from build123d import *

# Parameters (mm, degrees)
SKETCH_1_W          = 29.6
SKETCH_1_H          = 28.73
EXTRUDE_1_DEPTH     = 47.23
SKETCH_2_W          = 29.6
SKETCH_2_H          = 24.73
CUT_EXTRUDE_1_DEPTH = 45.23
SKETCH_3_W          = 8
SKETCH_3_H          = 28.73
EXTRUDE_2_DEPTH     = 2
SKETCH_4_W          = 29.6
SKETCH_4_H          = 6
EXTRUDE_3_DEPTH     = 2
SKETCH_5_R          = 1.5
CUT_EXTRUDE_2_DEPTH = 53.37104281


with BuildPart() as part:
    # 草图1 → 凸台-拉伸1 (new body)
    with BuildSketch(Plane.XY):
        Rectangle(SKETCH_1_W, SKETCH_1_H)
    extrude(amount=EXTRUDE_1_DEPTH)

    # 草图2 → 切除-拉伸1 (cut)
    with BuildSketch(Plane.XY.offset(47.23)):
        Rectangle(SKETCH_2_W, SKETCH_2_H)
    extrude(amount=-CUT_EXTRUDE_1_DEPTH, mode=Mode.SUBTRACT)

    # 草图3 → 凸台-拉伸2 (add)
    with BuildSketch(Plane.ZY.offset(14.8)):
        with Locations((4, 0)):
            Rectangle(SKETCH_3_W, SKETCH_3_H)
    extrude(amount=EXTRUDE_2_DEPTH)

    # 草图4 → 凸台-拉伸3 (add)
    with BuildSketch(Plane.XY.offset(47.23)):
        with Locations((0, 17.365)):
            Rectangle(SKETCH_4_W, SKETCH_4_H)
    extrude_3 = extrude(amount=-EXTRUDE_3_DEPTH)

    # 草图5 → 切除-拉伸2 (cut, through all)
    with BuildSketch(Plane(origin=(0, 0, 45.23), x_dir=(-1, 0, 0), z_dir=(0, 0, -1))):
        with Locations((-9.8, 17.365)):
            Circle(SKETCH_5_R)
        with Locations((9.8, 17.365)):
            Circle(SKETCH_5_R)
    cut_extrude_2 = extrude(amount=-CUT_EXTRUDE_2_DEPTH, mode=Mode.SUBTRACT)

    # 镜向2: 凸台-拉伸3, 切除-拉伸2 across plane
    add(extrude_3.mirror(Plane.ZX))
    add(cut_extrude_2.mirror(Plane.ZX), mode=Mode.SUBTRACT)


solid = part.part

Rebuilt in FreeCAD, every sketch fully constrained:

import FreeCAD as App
import Part
import Sketcher


def add_polygon(sketch, points):
    """Adds a closed chain of lines whose ends are joined by coincident constraints."""
    first, n = sketch.GeometryCount, len(points)
    for a, b in zip(points, points[1:] + points[:1]):
        sketch.addGeometry(Part.LineSegment(App.Vector(*a, 0), App.Vector(*b, 0)), False)
    for i in range(n):
        sketch.addConstraint(Sketcher.Constraint("Coincident", first + i, 2, first + (i + 1) % n, 1))

doc = App.newDocument("Part")
body = doc.addObject("PartDesign::Body", "Body")

# Sketch on XY plane
sketch1 = doc.addObject("Sketcher::SketchObject", "Sketch")
body.addObject(sketch1)
sketch1.AttachmentSupport = (doc.XY_Plane, [""])
sketch1.MapMode = "FlatFace"
add_polygon(sketch1, [(-14.8, 14.365), (-14.8, -14.365), (14.8, -14.365), (14.8, 14.365)])  # lines 0-3
sketch1.addConstraint([
    Sketcher.Constraint("Vertical", 0),
    Sketcher.Constraint("Horizontal", 1),
    Sketcher.Constraint("Vertical", 2),
    Sketcher.Constraint("Horizontal", 3),
    Sketcher.Constraint("Symmetric", 0, 2, 2, 2, -1, 1),
    Sketcher.Constraint("DistanceX", 1, 1, 1, 2, 29.6),
    Sketcher.Constraint("DistanceY", 0, 2, 0, 1, 28.73),
])
pad1 = doc.addObject("PartDesign::Pad", "Pad")
body.addObject(pad1)
pad1.Profile = sketch1
pad1.Length = 47.23

# Sketch on XY plane
sketch2 = doc.addObject("Sketcher::SketchObject", "Sketch001")
body.addObject(sketch2)
sketch2.AttachmentSupport = (doc.XY_Plane, [""])
sketch2.MapMode = "FlatFace"
sketch2.AttachmentOffset = App.Placement(App.Vector(0, 0, 47.23), App.Rotation())
add_polygon(sketch2, [(-14.8, 12.365), (-14.8, -12.365), (14.8, -12.365), (14.8, 12.365)])  # lines 0-3
sketch2.addConstraint([
    Sketcher.Constraint("Vertical", 0),
    Sketcher.Constraint("Horizontal", 1),
    Sketcher.Constraint("Vertical", 2),
    Sketcher.Constraint("Horizontal", 3),
    Sketcher.Constraint("Symmetric", 0, 2, 2, 2, -1, 1),
    Sketcher.Constraint("DistanceX", 1, 1, 1, 2, 29.6),
    Sketcher.Constraint("DistanceY", 0, 2, 0, 1, 24.73),
])
pocket1 = doc.addObject("PartDesign::Pocket", "Pocket")
body.addObject(pocket1)
pocket1.Profile = sketch2
pocket1.Length = 45.23

# Sketch on YZ plane
sketch3 = doc.addObject("Sketcher::SketchObject", "Sketch002")
body.addObject(sketch3)
sketch3.AttachmentSupport = (doc.YZ_Plane, [""])
sketch3.MapMode = "FlatFace"
sketch3.AttachmentOffset = App.Placement(App.Vector(0, 0, -14.8), App.Rotation())
add_polygon(sketch3, [(14.365, 0), (-14.365, 0), (-14.365, 8), (14.365, 8)])  # lines 0-3
sketch3.addConstraint([
    Sketcher.Constraint("Horizontal", 0),
    Sketcher.Constraint("Vertical", 1),
    Sketcher.Constraint("Horizontal", 2),
    Sketcher.Constraint("Vertical", 3),
    Sketcher.Constraint("Symmetric", 0, 2, 3, 2, -1, 1),
    Sketcher.Constraint("DistanceY", 1, 1, 1, 2, 8.0),
    Sketcher.Constraint("DistanceX", 0, 2, 0, 1, 28.73),
])
pad2 = doc.addObject("PartDesign::Pad", "Pad001")
body.addObject(pad2)
pad2.Profile = sketch3
pad2.Length = 2
pad2.Reversed = True

# Sketch on XY plane
sketch4 = doc.addObject("Sketcher::SketchObject", "Sketch003")
body.addObject(sketch4)
sketch4.AttachmentSupport = (doc.XY_Plane, [""])
sketch4.MapMode = "FlatFace"
sketch4.AttachmentOffset = App.Placement(App.Vector(0, 0, 47.23), App.Rotation())
add_polygon(sketch4, [(-14.8, 20.365), (-14.8, 14.365), (14.8, 14.365), (14.8, 20.365)])  # lines 0-3
sketch4.addConstraint([
    Sketcher.Constraint("Vertical", 0),
    Sketcher.Constraint("Horizontal", 1),
    Sketcher.Constraint("Vertical", 2),
    Sketcher.Constraint("Horizontal", 3),
    Sketcher.Constraint("DistanceY", 0, 2, 0, 1, 6.0),
    Sketcher.Constraint("DistanceX", 1, 1, 1, 2, 29.6),
    Sketcher.Constraint("DistanceX", 0, 2, -1, 1, 14.8),
    Sketcher.Constraint("DistanceY", -1, 1, 0, 2, 14.365),
])
pad3 = doc.addObject("PartDesign::Pad", "Pad002")
body.addObject(pad3)
pad3.Profile = sketch4
pad3.Length = 2
pad3.Reversed = True

# Sketch on XY plane
sketch5 = doc.addObject("Sketcher::SketchObject", "Sketch004")
body.addObject(sketch5)
sketch5.AttachmentSupport = (doc.XY_Plane, [""])
sketch5.MapMode = "FlatFace"
sketch5.AttachmentOffset = App.Placement(App.Vector(0, 0, 45.23), App.Rotation())
sketch5.addGeometry([
    Part.Circle(App.Vector(9.8, 17.365, 0), App.Vector(0, 0, 1), 1.5),
    Part.Circle(App.Vector(-9.8, 17.365, 0), App.Vector(0, 0, 1), 1.5),
], False)
sketch5.addConstraint([
    Sketcher.Constraint("Equal", 0, 1),
    Sketcher.Constraint("Symmetric", 0, 3, 1, 3, -2),
    Sketcher.Constraint("Diameter", 0, 3.0),
    Sketcher.Constraint("DistanceX", -1, 1, 0, 3, 9.8),
    Sketcher.Constraint("DistanceY", -1, 1, 0, 3, 17.365),
])
pocket2 = doc.addObject("PartDesign::Pocket", "Pocket001")
body.addObject(pocket2)
pocket2.Profile = sketch5
pocket2.Type = "ThroughAll"
pocket2.Reversed = True
doc.recompute()

mirrored = doc.addObject("PartDesign::Mirrored", "Mirrored")
body.addObject(mirrored)
mirrored.Originals = [pad3, pocket2]
mirrored.MirrorPlane = (doc.XZ_Plane, [""])
body.Tip = mirrored

doc.recompute()
